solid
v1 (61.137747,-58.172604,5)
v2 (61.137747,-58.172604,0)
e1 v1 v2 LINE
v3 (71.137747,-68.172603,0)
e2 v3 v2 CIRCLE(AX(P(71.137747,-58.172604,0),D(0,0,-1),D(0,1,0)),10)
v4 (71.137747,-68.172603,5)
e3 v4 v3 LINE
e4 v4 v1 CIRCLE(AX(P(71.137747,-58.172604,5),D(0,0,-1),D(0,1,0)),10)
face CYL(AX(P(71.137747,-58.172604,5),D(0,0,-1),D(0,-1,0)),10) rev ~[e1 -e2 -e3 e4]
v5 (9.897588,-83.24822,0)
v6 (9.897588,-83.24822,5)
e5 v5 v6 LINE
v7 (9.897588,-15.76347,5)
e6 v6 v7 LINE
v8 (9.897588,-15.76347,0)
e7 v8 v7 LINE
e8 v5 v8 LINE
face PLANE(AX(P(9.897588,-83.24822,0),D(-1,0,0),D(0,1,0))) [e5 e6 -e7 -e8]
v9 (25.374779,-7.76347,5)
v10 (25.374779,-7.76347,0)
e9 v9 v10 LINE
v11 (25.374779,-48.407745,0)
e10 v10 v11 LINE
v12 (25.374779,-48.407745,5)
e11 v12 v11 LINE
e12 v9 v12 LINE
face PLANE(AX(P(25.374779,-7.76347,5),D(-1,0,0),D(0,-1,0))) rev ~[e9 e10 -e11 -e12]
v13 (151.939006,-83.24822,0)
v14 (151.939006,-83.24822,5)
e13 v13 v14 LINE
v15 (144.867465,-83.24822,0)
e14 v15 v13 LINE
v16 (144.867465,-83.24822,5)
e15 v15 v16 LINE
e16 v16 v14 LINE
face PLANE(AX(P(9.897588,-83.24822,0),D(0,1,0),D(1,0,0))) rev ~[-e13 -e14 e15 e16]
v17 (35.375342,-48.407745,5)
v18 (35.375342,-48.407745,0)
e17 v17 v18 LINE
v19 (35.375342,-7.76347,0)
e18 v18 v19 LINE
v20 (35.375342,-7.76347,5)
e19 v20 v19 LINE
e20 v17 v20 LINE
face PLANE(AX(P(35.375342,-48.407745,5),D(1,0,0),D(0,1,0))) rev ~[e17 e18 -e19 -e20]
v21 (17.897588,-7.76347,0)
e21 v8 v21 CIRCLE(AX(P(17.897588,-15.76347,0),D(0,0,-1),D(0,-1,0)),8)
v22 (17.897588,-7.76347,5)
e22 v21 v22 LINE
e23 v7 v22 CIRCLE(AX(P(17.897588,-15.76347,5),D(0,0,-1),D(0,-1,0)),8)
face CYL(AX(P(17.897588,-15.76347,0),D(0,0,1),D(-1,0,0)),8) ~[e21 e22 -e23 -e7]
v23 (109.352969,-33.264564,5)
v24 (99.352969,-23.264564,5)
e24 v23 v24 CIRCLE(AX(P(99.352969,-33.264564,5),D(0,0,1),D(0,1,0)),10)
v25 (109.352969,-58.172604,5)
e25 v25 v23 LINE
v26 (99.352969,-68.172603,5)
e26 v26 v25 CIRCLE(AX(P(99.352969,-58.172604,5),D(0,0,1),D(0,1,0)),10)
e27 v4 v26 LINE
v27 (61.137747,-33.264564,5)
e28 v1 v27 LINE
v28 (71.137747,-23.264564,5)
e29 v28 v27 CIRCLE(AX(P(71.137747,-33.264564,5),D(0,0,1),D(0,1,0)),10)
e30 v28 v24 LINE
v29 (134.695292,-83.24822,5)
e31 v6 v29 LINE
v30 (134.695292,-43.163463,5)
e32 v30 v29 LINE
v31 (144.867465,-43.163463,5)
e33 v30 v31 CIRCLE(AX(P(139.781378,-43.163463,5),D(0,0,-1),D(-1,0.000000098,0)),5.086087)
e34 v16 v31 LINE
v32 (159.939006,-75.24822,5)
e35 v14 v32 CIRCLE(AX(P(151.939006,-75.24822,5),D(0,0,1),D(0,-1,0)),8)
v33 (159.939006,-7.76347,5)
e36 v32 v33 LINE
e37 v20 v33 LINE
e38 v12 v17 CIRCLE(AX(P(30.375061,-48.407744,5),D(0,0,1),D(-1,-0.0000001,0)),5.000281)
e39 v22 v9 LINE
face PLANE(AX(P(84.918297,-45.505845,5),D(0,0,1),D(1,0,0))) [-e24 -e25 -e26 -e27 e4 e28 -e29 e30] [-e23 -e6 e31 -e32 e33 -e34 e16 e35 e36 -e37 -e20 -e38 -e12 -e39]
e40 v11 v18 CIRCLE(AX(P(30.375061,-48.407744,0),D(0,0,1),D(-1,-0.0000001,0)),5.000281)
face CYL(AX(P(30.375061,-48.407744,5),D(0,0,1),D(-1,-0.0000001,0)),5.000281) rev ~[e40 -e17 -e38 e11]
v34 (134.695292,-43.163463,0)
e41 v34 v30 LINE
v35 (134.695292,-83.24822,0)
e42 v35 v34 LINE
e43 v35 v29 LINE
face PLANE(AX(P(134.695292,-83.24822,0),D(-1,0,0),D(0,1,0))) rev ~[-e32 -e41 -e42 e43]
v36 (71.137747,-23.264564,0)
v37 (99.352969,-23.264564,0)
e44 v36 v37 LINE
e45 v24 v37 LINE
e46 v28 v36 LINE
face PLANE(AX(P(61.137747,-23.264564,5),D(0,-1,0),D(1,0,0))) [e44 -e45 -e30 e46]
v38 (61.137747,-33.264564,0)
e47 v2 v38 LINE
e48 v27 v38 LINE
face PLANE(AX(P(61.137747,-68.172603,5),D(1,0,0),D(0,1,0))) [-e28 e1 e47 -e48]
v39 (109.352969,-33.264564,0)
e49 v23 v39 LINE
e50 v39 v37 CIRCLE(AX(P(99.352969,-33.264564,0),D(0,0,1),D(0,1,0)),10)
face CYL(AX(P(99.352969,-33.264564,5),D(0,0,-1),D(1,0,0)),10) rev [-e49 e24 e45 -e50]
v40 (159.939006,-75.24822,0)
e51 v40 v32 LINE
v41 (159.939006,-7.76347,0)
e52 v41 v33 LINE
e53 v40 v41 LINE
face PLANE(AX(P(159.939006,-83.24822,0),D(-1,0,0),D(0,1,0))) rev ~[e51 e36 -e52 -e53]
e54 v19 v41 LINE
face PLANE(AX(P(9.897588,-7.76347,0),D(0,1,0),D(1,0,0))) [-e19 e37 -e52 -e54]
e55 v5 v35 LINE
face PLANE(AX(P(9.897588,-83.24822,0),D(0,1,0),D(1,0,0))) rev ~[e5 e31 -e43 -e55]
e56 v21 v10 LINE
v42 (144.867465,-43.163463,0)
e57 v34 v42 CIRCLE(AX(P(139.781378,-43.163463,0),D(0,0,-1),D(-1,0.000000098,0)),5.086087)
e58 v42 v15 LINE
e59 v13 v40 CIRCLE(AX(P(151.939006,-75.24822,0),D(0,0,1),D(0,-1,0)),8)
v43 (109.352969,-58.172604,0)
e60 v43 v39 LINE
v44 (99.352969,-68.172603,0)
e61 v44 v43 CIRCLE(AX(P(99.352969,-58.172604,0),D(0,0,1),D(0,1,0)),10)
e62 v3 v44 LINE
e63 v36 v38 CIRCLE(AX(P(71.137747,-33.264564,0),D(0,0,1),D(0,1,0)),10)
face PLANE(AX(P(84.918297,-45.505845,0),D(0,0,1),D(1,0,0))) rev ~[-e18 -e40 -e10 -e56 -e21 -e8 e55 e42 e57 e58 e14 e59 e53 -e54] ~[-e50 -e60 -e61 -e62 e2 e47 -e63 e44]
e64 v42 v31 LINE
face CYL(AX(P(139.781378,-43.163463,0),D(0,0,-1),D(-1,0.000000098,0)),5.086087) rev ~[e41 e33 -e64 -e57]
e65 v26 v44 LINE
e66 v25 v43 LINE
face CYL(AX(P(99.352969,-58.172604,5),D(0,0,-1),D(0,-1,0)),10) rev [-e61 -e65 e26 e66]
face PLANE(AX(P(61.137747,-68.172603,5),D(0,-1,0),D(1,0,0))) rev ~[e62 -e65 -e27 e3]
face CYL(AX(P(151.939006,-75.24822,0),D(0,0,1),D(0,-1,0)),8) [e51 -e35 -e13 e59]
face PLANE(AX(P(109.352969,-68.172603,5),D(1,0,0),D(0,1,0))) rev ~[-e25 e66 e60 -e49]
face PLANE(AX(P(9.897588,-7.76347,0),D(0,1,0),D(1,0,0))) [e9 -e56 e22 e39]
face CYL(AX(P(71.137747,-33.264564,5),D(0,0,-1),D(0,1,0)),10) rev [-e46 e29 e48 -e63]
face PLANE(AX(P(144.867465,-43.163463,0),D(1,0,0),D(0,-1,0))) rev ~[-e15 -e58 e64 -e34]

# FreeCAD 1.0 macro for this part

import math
import FreeCAD as App
import Part
import Sketcher
Q = App.Units.Quantity


def edges_at(feature, points):
    """Names of the edges that pass closest to the given points."""
    edges = feature.Shape.Edges
    near = lambda p: min(range(len(edges)), key=lambda i: edges[i].distToShape(Part.Vertex(*p))[0])
    return sorted({f"Edge{near(p) + 1}" for p in points})


def add_polygon(sketch, points):
    """Adds a closed chain of lines whose ends are joined by coincident constraints."""
    first, n = sketch.GeometryCount, len(points)
    for a, b in zip(points, points[1:] + points[:1]):
        sketch.addGeometry(Part.LineSegment(App.Vector(*a, 0), App.Vector(*b, 0)), False)
    for i in range(n):
        sketch.addConstraint(Sketcher.Constraint("Coincident", first + i, 2, first + (i + 1) % n, 1))

doc = App.newDocument("Part")
body = doc.addObject("PartDesign::Body", "Body")

sketch1 = doc.addObject("Sketcher::SketchObject", "Sketch")
body.addObject(sketch1)
sketch1.AttachmentSupport = (doc.XY_Plane, [""])
sketch1.MapMode = "FlatFace"
add_polygon(sketch1, [(10, -8), (10, -83), (160, -83), (160, -8)])
sketch1.addConstraint(Sketcher.Constraint("Vertical", 0))
sketch1.addConstraint(Sketcher.Constraint("Horizontal", 1))
sketch1.addConstraint(Sketcher.Constraint("Vertical", 2))
sketch1.addConstraint(Sketcher.Constraint("Horizontal", 3))
sketch1.addConstraint(Sketcher.Constraint("DistanceX", 1, 1, 1, 2, Q("150.041418 mm")))
sketch1.addConstraint(Sketcher.Constraint("DistanceY", 0, 2, 0, 1, Q("75.48475 mm")))
sketch1.addConstraint(Sketcher.Constraint("DistanceX", -1, 1, 0, 2, Q("9.897588 mm")))
sketch1.addConstraint(Sketcher.Constraint("DistanceY", 0, 2, -1, 1, Q("83.24822 mm")))
pad1 = doc.addObject("PartDesign::Pad", "Pad")
body.addObject(pad1)
pad1.Profile = sketch1
pad1.Length = 5

sketch2 = doc.addObject("Sketcher::SketchObject", "Sketch001")
body.addObject(sketch2)
sketch2.AttachmentSupport = (doc.XY_Plane, [""])
sketch2.MapMode = "FlatFace"
sketch2.addGeometry(Part.LineSegment(App.Vector(145, -83, 0), App.Vector(135, -83, 0)), False)
sketch2.addGeometry(Part.LineSegment(App.Vector(135, -83, 0), App.Vector(135, -43, 0)), False)
sketch2.addGeometry(Part.ArcOfCircle(Part.Circle(App.Vector(140, -43, 0), App.Vector(0, 0, 1), 5), math.radians(0), math.radians(180)), False)
sketch2.addGeometry(Part.LineSegment(App.Vector(145, -43, 0), App.Vector(145, -83, 0)), False)
sketch2.addConstraint(Sketcher.Constraint("Coincident", 0, 2, 1, 1))
sketch2.addConstraint(Sketcher.Constraint("Tangent", 1, 2, 2, 2))
sketch2.addConstraint(Sketcher.Constraint("Tangent", 2, 1, 3, 1))
sketch2.addConstraint(Sketcher.Constraint("Coincident", 3, 2, 0, 1))
sketch2.addConstraint(Sketcher.Constraint("Horizontal", 0))
sketch2.addConstraint(Sketcher.Constraint("Vertical", 1))
sketch2.addConstraint(Sketcher.Constraint("Vertical", 3))
sketch2.addConstraint(Sketcher.Constraint("Radius", 2, Q("5.086087 mm")))
sketch2.addConstraint(Sketcher.Constraint("DistanceY", 1, 1, 1, 2, Q("40.084757 mm")))
sketch2.addConstraint(Sketcher.Constraint("DistanceX", -1, 1, 2, 3, Q("139.781378 mm")))
sketch2.addConstraint(Sketcher.Constraint("DistanceY", 0, 2, -1, 1, Q("83.24822 mm")))
pocket1 = doc.addObject("PartDesign::Pocket", "Pocket")
body.addObject(pocket1)
pocket1.Profile = sketch2
pocket1.Length = 9.8
pocket1.Reversed = True

sketch3 = doc.addObject("Sketcher::SketchObject", "Sketch002")
body.addObject(sketch3)
sketch3.AttachmentSupport = (doc.XY_Plane, [""])
sketch3.MapMode = "FlatFace"
sketch3.AttachmentOffset = App.Placement(App.Vector(0, 0, 5), App.Rotation())
sketch3.addGeometry(Part.LineSegment(App.Vector(35, -8, 0), App.Vector(25, -8, 0)), False)
sketch3.addGeometry(Part.LineSegment(App.Vector(25, -8, 0), App.Vector(25, -48, 0)), False)
sketch3.addGeometry(Part.ArcOfCircle(Part.Circle(App.Vector(30, -48, 0), App.Vector(0, 0, 1), 5), math.radians(-180), math.radians(0)), False)
sketch3.addGeometry(Part.LineSegment(App.Vector(35, -48, 0), App.Vector(35, -8, 0)), False)
sketch3.addConstraint(Sketcher.Constraint("Coincident", 0, 2, 1, 1))
sketch3.addConstraint(Sketcher.Constraint("Tangent", 1, 2, 2, 1))
sketch3.addConstraint(Sketcher.Constraint("Tangent", 2, 2, 3, 1))
sketch3.addConstraint(Sketcher.Constraint("Coincident", 3, 2, 0, 1))
sketch3.addConstraint(Sketcher.Constraint("Horizontal", 0))
sketch3.addConstraint(Sketcher.Constraint("Vertical", 1))
sketch3.addConstraint(Sketcher.Constraint("Vertical", 3))
sketch3.addConstraint(Sketcher.Constraint("Radius", 2, Q("5.000281 mm")))
sketch3.addConstraint(Sketcher.Constraint("DistanceY", 1, 2, 1, 1, Q("40.644275 mm")))
sketch3.addConstraint(Sketcher.Constraint("DistanceX", -1, 1, 2, 3, Q("30.375061 mm")))
sketch3.addConstraint(Sketcher.Constraint("DistanceY", 0, 2, -1, 1, Q("7.76347 mm")))
pocket2 = doc.addObject("PartDesign::Pocket", "Pocket001")
body.addObject(pocket2)
pocket2.Profile = sketch3
pocket2.Length = 15.9

sketch4 = doc.addObject("Sketcher::SketchObject", "Sketch003")
body.addObject(sketch4)
sketch4.AttachmentSupport = (doc.XY_Plane, [""])
sketch4.MapMode = "FlatFace"
sketch4.AttachmentOffset = App.Placement(App.Vector(0, 0, 5), App.Rotation())
add_polygon(sketch4, [(61, -23), (61, -68), (109, -68), (109, -23)])
sketch4.addConstraint(Sketcher.Constraint("Vertical", 0))
sketch4.addConstraint(Sketcher.Constraint("Horizontal", 1))
sketch4.addConstraint(Sketcher.Constraint("Vertical", 2))
sketch4.addConstraint(Sketcher.Constraint("Horizontal", 3))
sketch4.addConstraint(Sketcher.Constraint("DistanceY", 0, 2, 0, 1, Q("44.908039 mm")))
sketch4.addConstraint(Sketcher.Constraint("DistanceX", 1, 1, 1, 2, Q("48.215222 mm")))
sketch4.addConstraint(Sketcher.Constraint("DistanceX", -1, 1, 1, 2, Q("109.352969 mm")))
sketch4.addConstraint(Sketcher.Constraint("DistanceY", 0, 2, -1, 1, Q("68.172603 mm")))
pocket3 = doc.addObject("PartDesign::Pocket", "Pocket002")
body.addObject(pocket3)
pocket3.Profile = sketch4
pocket3.Length = 12.5
doc.recompute()

fillet = doc.addObject("PartDesign::Fillet", "Fillet")
body.addObject(fillet)
fillet.Base = (pocket3, edges_at(pocket3, [
    (109.353, -23.265, 2.5),
    (61.138, -68.173, 2.5),
    (109.353, -68.173, 2.5),
    (61.138, -23.265, 2.5),
]))
fillet.Radius = 10
doc.recompute()

fillet2 = doc.addObject("PartDesign::Fillet", "Fillet001")
body.addObject(fillet2)
fillet2.Base = (fillet, edges_at(fillet, [(9.898, -7.763, 2.5), (159.939, -83.248, 2.5)]))
fillet2.Radius = 8

doc.recompute()
